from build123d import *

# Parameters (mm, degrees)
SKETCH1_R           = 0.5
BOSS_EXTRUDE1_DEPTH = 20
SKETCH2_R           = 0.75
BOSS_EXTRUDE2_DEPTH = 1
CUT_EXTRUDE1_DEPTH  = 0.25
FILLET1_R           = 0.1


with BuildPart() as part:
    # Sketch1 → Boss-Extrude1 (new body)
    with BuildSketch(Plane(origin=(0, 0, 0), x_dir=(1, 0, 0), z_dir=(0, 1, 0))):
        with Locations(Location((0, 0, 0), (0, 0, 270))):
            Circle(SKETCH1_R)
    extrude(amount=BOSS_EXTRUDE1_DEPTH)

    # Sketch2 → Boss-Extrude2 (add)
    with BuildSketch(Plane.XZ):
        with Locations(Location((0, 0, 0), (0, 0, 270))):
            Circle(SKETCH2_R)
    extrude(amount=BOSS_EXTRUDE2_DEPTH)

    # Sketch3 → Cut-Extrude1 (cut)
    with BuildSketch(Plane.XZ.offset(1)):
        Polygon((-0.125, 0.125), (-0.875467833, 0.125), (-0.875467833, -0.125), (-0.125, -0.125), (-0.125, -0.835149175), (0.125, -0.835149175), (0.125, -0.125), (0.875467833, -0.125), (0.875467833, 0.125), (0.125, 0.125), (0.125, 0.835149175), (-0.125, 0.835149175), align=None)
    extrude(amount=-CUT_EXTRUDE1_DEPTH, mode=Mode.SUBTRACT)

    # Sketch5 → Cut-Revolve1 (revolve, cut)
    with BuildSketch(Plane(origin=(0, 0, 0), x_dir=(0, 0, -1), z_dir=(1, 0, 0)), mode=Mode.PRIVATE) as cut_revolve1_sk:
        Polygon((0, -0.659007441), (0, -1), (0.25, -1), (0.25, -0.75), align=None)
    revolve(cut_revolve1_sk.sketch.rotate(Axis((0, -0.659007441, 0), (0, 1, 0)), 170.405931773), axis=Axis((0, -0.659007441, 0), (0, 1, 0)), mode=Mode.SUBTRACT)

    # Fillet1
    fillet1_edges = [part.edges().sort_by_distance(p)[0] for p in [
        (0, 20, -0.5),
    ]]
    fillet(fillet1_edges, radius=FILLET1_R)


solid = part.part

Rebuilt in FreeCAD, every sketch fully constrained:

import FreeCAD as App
import Part
import Sketcher
from FreeCAD import Vector
Q = App.Units.Quantity


def edges_at(feature, points):
    """Names of the edges that pass closest to the given points."""
    edges = feature.Shape.Edges
    near = lambda p: min(range(len(edges)), key=lambda i: edges[i].distToShape(Part.Vertex(*p))[0])
    return sorted({f"Edge{near(p) + 1}" for p in points})


def add_polygon(sketch, points):
    """Adds a closed chain of lines whose ends are joined by coincident constraints."""
    first, n = sketch.GeometryCount, len(points)
    for a, b in zip(points, points[1:] + points[:1]):
        sketch.addGeometry(Part.LineSegment(App.Vector(*a, 0), App.Vector(*b, 0)), False)
    for i in range(n):
        sketch.addConstraint(Sketcher.Constraint("Coincident", first + i, 2, first + (i + 1) % n, 1))

doc = App.newDocument("Part")
params = doc.addObject("Spreadsheet::Sheet", "Params")
for row, (alias, value) in enumerate([
    ("sketch1_diameter", "1 mm"),
    ("pad1_length", "20 mm"),
    ("sketch2_diameter", "1.5 mm"),
    ("pad2_length", "1 mm"),
    ("sketch3_width", "0.25 mm"),
    ("pocket1_length", "0.25 mm"),
    ("sketch4_width", "0.25 mm"),
    ("groove_angle", "360 deg"),
    ("fillet_radius", "0.1 mm"),
], start=1):
    params.set(f"A{row}", alias)
    params.set(f"B{row}", "=" + value)
    params.setAlias(f"B{row}", alias)

body = doc.addObject("PartDesign::Body", "Body")

# Sketch on XZ plane
sketch1 = body.newObject("Sketcher::SketchObject", "Sketch")
sketch1.AttachmentSupport = (doc.getObject("XZ_Plane"), [""])
sketch1.MapMode = "FlatFace"
sketch1.addGeometry(Part.Circle(Vector(0, 0, 0), Vector(0, 0, 1), 0.5), False)
sketch1.addConstraint([
    Sketcher.Constraint("Coincident", 0, 3, -1, 1),
    Sketcher.Constraint("Diameter", 0, Q("1 mm")),
])
sketch1.setExpression("Constraints[1]", "Params.sketch1_diameter")
pad1 = body.newObject("PartDesign::Pad", "Pad")
pad1.Profile = sketch1
pad1.setExpression("Length", "Params.pad1_length")
pad1.Reversed = True

# Sketch on XZ plane
sketch2 = body.newObject("Sketcher::SketchObject", "Sketch001")
sketch2.AttachmentSupport = (doc.getObject("XZ_Plane"), [""])
sketch2.MapMode = "FlatFace"
sketch2.addGeometry(Part.Circle(Vector(0, 0, 0), Vector(0, 0, 1), 0.8), False)
sketch2.addConstraint([
    Sketcher.Constraint("Coincident", 0, 3, -1, 1),
    Sketcher.Constraint("Diameter", 0, Q("1.5 mm")),
])
sketch2.setExpression("Constraints[1]", "Params.sketch2_diameter")
pad2 = body.newObject("PartDesign::Pad", "Pad001")
pad2.Profile = sketch2
pad2.setExpression("Length", "Params.pad2_length")

# Sketch on XZ plane
sketch3 = body.newObject("Sketcher::SketchObject", "Sketch002")
sketch3.AttachmentSupport = (doc.getObject("XZ_Plane"), [""])
sketch3.MapMode = "FlatFace"
sketch3.AttachmentOffset = App.Placement(Vector(0, 0, 1), App.Rotation())
add_polygon(sketch3, [(-0.12, 0.12), (-0.88, 0.12), (-0.88, -0.12), (-0.12, -0.12), (-0.12, -0.84), (0.12, -0.84), (0.12, -0.12), (0.88, -0.12), (0.88, 0.12), (0.12, 0.12), (0.12, 0.84), (-0.12, 0.84)])  # lines 0-11
sketch3.addConstraint([
    Sketcher.Constraint("Horizontal", 0),
    Sketcher.Constraint("Vertical", 1),
    Sketcher.Constraint("Horizontal", 2),
    Sketcher.Constraint("Vertical", 3),
    Sketcher.Constraint("Horizontal", 4),
    Sketcher.Constraint("Vertical", 5),
    Sketcher.Constraint("Horizontal", 6),
    Sketcher.Constraint("Vertical", 7),
    Sketcher.Constraint("Horizontal", 8),
    Sketcher.Constraint("Vertical", 9),
    Sketcher.Constraint("Horizontal", 10),
    Sketcher.Constraint("Vertical", 11),
    Sketcher.Constraint("Symmetric", 0, 2, 6, 2, -1, 1),
    Sketcher.Constraint("Symmetric", 2, 2, 8, 2, -1, 1),
    Sketcher.Constraint("Symmetric", 4, 2, 10, 2, -1, 1),
    Sketcher.Constraint("Symmetric", 2, 2, 5, 2, -2),
    Sketcher.Constraint("Equal", 10, 1),
    Sketcher.Constraint("DistanceX", 4, 1, 4, 2, Q("0.25 mm")),
    Sketcher.Constraint("DistanceY", 3, 2, 3, 1, Q("0.710149 mm")),
    Sketcher.Constraint("DistanceX", 0, 2, 0, 1, Q("0.750468 mm")),
])
sketch3.setExpression("Constraints[29]", "Params.sketch3_width")
pocket1 = body.newObject("PartDesign::Pocket", "Pocket")
pocket1.Profile = sketch3
pocket1.setExpression("Length", "Params.pocket1_length")

# Sketch on YZ plane
sketch4 = body.newObject("Sketcher::SketchObject", "Sketch003")
sketch4.AttachmentSupport = (doc.getObject("YZ_Plane"), [""])
sketch4.MapMode = "FlatFace"
add_polygon(sketch4, [(-0.66, 0), (-1, 0), (-1, -0.25), (-0.75, -0.25)])  # lines 0-3
sketch4.addConstraint([
    Sketcher.Constraint("Horizontal", 0),
    Sketcher.Constraint("Vertical", 1),
    Sketcher.Constraint("Horizontal", 2),
    Sketcher.Constraint("PointOnObject", 0, 2, -1),
    Sketcher.Constraint("Equal", 2, 1),
    Sketcher.Constraint("Angle", 3, Q("70 deg")),
    Sketcher.Constraint("DistanceX", 0, 2, -1, 1, Q("1 mm")),
    Sketcher.Constraint("DistanceX", 2, 1, 2, 2, Q("0.25 mm")),
])
sketch4.setExpression("Constraints[11]", "Params.sketch4_width")
groove = body.newObject("PartDesign::Groove", "Groove")
groove.Profile = sketch4
groove.ReferenceAxis = (sketch4, ["H_Axis"])
groove.setExpression("Angle", "Params.groove_angle")
doc.recompute()

fillet = body.newObject("PartDesign::Fillet", "Fillet")
fillet.Base = (groove, edges_at(groove, [(0, 20, -0.5)]))
fillet.setExpression("Radius", "Params.fillet_radius")

doc.recompute()
